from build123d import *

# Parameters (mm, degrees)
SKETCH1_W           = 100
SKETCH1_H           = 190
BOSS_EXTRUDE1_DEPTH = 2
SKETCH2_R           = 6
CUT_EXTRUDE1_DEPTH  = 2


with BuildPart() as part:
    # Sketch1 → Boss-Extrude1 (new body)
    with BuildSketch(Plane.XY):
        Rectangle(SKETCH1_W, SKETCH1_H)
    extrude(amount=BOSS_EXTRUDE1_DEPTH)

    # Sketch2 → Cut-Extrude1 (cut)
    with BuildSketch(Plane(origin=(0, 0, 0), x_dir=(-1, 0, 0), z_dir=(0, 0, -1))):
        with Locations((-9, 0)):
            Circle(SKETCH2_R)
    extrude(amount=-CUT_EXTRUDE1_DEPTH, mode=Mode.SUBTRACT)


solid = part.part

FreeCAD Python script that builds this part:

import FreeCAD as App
import Part
import Sketcher

V = App.Vector


def add_polygon(sketch, points):
    """Adds a closed chain of lines whose ends are joined by coincident constraints."""
    first, n = sketch.GeometryCount, len(points)
    for a, b in zip(points, points[1:] + points[:1]):
        sketch.addGeometry(Part.LineSegment(App.Vector(*a, 0), App.Vector(*b, 0)), False)
    for i in range(n):
        sketch.addConstraint(Sketcher.Constraint("Coincident", first + i, 2, first + (i + 1) % n, 1))

doc = App.newDocument("Part")
body = doc.addObject("PartDesign::Body", "Body")

# Sketch on XY plane
sketch1 = body.newObject("Sketcher::SketchObject", "Sketch")
sketch1.AttachmentSupport = (doc.getObject("XY_Plane"), [""])
sketch1.MapMode = "FlatFace"
add_polygon(sketch1, [(-50, 95), (-50, -95), (50, -95), (50, 95)])  # lines 0-3
sketch1.addConstraint([
    Sketcher.Constraint("Vertical", 0),
    Sketcher.Constraint("Horizontal", 1),
    Sketcher.Constraint("Vertical", 2),
    Sketcher.Constraint("Horizontal", 3),
    Sketcher.Constraint("Symmetric", 0, 2, 2, 2, -1, 1),
    Sketcher.Constraint("DistanceX", 1, 1, 1, 2, 100.0),
    Sketcher.Constraint("DistanceY", 0, 2, 0, 1, 190.0),
])
pad1 = body.newObject("PartDesign::Pad", "Pad")
pad1.Profile = sketch1
pad1.Length = 2

# Sketch on XY plane
sketch2 = body.newObject("Sketcher::SketchObject", "Sketch001")
sketch2.AttachmentSupport = (doc.getObject("XY_Plane"), [""])
sketch2.MapMode = "FlatFace"
sketch2.addGeometry(Part.Circle(V(9, 0, 0), V(0, 0, 1), 6), False)
sketch2.addConstraint([
    Sketcher.Constraint("PointOnObject", 0, 3, -1),
    Sketcher.Constraint("Diameter", 0, 12.0),
    Sketcher.Constraint("DistanceX", -1, 1, 0, 3, 9.0),
])
pocket1 = body.newObject("PartDesign::Pocket", "Pocket")
pocket1.Profile = sketch2
pocket1.Length = 2
pocket1.Reversed = True

doc.recompute()
